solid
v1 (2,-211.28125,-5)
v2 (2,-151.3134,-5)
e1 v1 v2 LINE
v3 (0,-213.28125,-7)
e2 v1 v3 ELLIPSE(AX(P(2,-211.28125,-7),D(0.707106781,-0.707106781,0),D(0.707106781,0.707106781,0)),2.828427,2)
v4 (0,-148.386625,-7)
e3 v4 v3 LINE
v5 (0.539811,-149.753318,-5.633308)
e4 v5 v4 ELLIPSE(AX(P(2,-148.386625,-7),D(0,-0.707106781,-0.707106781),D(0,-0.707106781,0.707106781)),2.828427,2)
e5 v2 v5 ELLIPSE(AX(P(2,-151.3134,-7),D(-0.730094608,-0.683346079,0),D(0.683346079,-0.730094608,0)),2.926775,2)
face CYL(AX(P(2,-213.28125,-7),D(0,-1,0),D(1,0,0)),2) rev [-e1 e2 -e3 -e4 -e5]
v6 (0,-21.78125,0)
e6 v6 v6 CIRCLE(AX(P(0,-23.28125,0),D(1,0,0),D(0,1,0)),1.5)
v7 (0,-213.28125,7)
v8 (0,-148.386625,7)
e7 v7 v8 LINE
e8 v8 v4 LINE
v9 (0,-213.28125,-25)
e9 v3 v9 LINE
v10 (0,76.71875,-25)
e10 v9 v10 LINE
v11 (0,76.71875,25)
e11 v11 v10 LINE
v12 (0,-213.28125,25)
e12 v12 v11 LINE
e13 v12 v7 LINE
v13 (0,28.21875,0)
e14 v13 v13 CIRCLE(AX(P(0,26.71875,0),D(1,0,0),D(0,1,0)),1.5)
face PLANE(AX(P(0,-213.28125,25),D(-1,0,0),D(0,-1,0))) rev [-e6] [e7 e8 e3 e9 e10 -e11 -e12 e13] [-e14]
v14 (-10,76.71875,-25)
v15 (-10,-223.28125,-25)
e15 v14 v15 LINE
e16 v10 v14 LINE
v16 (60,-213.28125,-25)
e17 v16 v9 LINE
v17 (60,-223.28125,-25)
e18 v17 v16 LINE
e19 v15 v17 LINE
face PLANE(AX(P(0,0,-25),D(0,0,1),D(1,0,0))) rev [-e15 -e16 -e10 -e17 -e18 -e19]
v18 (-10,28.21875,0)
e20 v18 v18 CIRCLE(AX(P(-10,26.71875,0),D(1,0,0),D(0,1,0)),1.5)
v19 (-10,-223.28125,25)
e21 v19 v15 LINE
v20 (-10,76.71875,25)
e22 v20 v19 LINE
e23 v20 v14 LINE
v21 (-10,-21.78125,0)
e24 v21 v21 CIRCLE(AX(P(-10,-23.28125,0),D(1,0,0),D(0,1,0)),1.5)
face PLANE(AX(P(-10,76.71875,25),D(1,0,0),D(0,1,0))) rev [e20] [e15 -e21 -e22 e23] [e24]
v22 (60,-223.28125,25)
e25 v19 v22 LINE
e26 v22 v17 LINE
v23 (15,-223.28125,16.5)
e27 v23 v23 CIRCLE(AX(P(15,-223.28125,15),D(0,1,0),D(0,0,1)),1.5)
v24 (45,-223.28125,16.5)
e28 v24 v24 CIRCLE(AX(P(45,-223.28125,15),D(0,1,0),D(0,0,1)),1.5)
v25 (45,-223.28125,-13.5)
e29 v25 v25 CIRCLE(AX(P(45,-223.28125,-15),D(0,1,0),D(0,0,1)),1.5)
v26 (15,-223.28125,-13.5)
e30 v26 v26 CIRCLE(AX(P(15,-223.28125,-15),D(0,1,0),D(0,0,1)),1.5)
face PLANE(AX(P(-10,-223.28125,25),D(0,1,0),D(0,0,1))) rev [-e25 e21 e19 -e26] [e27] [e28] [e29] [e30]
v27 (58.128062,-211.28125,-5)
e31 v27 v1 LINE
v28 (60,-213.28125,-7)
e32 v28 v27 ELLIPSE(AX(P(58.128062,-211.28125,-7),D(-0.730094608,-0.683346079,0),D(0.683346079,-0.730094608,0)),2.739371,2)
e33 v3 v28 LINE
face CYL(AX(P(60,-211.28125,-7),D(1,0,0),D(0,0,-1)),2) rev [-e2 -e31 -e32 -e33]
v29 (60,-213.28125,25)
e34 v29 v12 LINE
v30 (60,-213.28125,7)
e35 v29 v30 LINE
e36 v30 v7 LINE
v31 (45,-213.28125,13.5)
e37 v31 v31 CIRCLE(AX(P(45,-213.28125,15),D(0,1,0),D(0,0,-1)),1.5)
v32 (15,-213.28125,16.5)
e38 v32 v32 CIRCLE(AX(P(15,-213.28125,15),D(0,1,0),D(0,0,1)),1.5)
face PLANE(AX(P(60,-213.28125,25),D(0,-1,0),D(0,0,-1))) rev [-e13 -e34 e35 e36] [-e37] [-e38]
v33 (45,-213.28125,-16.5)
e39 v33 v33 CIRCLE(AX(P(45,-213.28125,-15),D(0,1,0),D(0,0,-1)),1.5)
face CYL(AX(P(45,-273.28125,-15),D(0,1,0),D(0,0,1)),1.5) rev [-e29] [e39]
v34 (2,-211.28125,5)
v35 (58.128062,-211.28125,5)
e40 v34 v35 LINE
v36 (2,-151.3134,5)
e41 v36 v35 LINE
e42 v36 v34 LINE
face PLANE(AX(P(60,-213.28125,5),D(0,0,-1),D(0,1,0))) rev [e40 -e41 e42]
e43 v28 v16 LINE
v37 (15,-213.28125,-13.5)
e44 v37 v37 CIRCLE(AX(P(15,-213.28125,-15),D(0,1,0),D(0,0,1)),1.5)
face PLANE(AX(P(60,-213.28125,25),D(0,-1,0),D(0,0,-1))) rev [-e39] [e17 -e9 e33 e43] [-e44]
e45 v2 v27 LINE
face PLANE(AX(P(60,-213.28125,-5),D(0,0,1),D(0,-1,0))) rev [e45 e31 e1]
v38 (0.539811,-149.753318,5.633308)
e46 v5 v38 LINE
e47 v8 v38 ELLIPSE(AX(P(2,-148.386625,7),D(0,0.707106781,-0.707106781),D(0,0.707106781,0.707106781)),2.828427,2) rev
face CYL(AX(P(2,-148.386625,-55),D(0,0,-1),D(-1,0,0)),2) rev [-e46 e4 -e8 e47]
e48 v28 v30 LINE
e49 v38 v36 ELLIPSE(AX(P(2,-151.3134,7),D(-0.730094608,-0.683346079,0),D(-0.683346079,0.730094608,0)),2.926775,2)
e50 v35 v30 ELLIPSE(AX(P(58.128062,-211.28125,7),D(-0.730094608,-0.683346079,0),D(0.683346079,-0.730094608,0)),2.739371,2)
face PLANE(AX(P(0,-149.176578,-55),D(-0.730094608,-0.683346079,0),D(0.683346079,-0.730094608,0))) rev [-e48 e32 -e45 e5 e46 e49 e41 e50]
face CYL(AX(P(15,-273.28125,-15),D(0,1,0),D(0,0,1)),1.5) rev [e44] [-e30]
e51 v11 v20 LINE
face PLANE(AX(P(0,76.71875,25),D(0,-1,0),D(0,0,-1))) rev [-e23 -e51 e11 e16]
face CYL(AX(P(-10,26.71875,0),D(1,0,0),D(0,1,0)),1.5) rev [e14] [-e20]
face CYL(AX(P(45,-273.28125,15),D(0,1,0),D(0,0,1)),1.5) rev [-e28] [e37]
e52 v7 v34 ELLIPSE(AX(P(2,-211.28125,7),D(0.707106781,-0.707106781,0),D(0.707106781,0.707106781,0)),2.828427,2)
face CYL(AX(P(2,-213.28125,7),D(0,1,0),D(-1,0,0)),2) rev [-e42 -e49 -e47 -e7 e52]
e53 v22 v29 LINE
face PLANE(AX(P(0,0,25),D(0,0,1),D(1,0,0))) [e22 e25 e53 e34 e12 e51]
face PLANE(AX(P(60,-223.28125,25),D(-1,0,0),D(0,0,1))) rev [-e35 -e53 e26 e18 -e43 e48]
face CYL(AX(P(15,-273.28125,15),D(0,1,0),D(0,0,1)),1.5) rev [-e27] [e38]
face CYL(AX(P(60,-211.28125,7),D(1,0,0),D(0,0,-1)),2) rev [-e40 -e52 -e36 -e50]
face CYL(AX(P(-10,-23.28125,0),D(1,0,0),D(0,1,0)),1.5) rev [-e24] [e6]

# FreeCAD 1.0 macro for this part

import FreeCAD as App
import Part
import Sketcher


def edges_at(feature, points):
    """Names of the edges that pass closest to the given points."""
    edges = feature.Shape.Edges
    near = lambda p: min(range(len(edges)), key=lambda i: edges[i].distToShape(Part.Vertex(*p))[0])
    return sorted({f"Edge{near(p) + 1}" for p in points})

doc = App.newDocument("Part")
body = doc.addObject("PartDesign::Body", "Body")

# Sketch on XY plane
sketch1 = body.newObject("Sketcher::SketchObject", "Sketch")
sketch1.AttachmentSupport = (doc.getObject("XY_Plane"), [""])
sketch1.MapMode = "FlatFace"
sketch1.addGeometry(Part.LineSegment(App.Vector(0, 77, 0), App.Vector(-10, 77, 0)), False)
sketch1.addGeometry(Part.LineSegment(App.Vector(-10, 77, 0), App.Vector(-10, -223, 0)), False)
sketch1.addGeometry(Part.LineSegment(App.Vector(-10, -223, 0), App.Vector(60, -223, 0)), False)
sketch1.addGeometry(Part.LineSegment(App.Vector(60, -223, 0), App.Vector(60, -213, 0)), False)
sketch1.addGeometry(Part.LineSegment(App.Vector(60, -213, 0), App.Vector(0, -213, 0)), False)
sketch1.addGeometry(Part.LineSegment(App.Vector(0, -213, 0), App.Vector(0, 77, 0)), False)
sketch1.addConstraint(Sketcher.Constraint("Coincident", 0, 2, 1, 1))
sketch1.addConstraint(Sketcher.Constraint("Coincident", 1, 2, 2, 1))
sketch1.addConstraint(Sketcher.Constraint("Coincident", 2, 2, 3, 1))
sketch1.addConstraint(Sketcher.Constraint("Coincident", 3, 2, 4, 1))
sketch1.addConstraint(Sketcher.Constraint("Coincident", 4, 2, 5, 1))
sketch1.addConstraint(Sketcher.Constraint("Coincident", 5, 2, 0, 1))
sketch1.addConstraint(Sketcher.Constraint("Horizontal", 0))
sketch1.addConstraint(Sketcher.Constraint("Vertical", 1))
sketch1.addConstraint(Sketcher.Constraint("Horizontal", 2))
sketch1.addConstraint(Sketcher.Constraint("Vertical", 3))
sketch1.addConstraint(Sketcher.Constraint("Horizontal", 4))
sketch1.addConstraint(Sketcher.Constraint("Vertical", 5))
sketch1.addConstraint(Sketcher.Constraint("PointOnObject", 4, 2, -2))
sketch1.addConstraint(Sketcher.Constraint("Equal", 0, 3))
sketch1.addConstraint(Sketcher.Constraint("DistanceX", 0, 2, 0, 1, 10.0))
sketch1.addConstraint(Sketcher.Constraint("DistanceX", 2, 1, 2, 2, 70.0))
sketch1.addConstraint(Sketcher.Constraint("DistanceY", 1, 2, 1, 1, 300.0))
sketch1.addConstraint(Sketcher.Constraint("DistanceY", -1, 1, 0, 2, 76.71875))
pad1 = body.newObject("PartDesign::Pad", "Pad")
pad1.Profile = sketch1
pad1.Length = 50
pad1.Midplane = True

# Sketch on YZ plane
sketch2 = body.newObject("Sketcher::SketchObject", "Sketch001")
sketch2.AttachmentSupport = (doc.getObject("YZ_Plane"), [""])
sketch2.MapMode = "FlatFace"
sketch2.addGeometry(Part.LineSegment(App.Vector(-149, 5, 0), App.Vector(-213, 5, 0)), False)
sketch2.addGeometry(Part.LineSegment(App.Vector(-213, 5, 0), App.Vector(-213, -5, 0)), False)
sketch2.addGeometry(Part.LineSegment(App.Vector(-213, -5, 0), App.Vector(-149, -5, 0)), False)
sketch2.addGeometry(Part.LineSegment(App.Vector(-149, -5, 0), App.Vector(-149, 5, 0)), False)
sketch2.addConstraint(Sketcher.Constraint("Coincident", 0, 2, 1, 1))
sketch2.addConstraint(Sketcher.Constraint("Coincident", 1, 2, 2, 1))
sketch2.addConstraint(Sketcher.Constraint("Coincident", 2, 2, 3, 1))
sketch2.addConstraint(Sketcher.Constraint("Coincident", 3, 2, 0, 1))
sketch2.addConstraint(Sketcher.Constraint("Horizontal", 0))
sketch2.addConstraint(Sketcher.Constraint("Vertical", 1))
sketch2.addConstraint(Sketcher.Constraint("Horizontal", 2))
sketch2.addConstraint(Sketcher.Constraint("Vertical", 3))
sketch2.addConstraint(Sketcher.Constraint("DistanceY", 1, 2, 1, 1, 10.0))
sketch2.addConstraint(Sketcher.Constraint("DistanceY", -1, 1, 0, 2, 5.0))
sketch2.addConstraint(Sketcher.Constraint("DistanceX", 0, 2, 0, 1, 64.104672))
sketch2.addConstraint(Sketcher.Constraint("DistanceX", 0, 2, -1, 1, 213.28125))
pad2 = body.newObject("PartDesign::Pad", "Pad001")
pad2.Profile = sketch2
pad2.Length = 60

# Sketch on XY plane
sketch3 = body.newObject("Sketcher::SketchObject", "Sketch002")
sketch3.AttachmentSupport = (doc.getObject("XY_Plane"), [""])
sketch3.MapMode = "FlatFace"
sketch3.AttachmentOffset = App.Placement(App.Vector(0, 0, 5), App.Rotation())
sketch3.addGeometry(Part.LineSegment(App.Vector(0, -149, 0), App.Vector(60, -213, 0)), False)
sketch3.addGeometry(Part.LineSegment(App.Vector(60, -213, 0), App.Vector(60, -149, 0)), False)
sketch3.addGeometry(Part.LineSegment(App.Vector(60, -149, 0), App.Vector(0, -149, 0)), False)
sketch3.addConstraint(Sketcher.Constraint("Coincident", 0, 2, 1, 1))
sketch3.addConstraint(Sketcher.Constraint("Coincident", 1, 2, 2, 1))
sketch3.addConstraint(Sketcher.Constraint("Coincident", 2, 2, 0, 1))
sketch3.addConstraint(Sketcher.Constraint("Vertical", 1))
sketch3.addConstraint(Sketcher.Constraint("Horizontal", 2))
sketch3.addConstraint(Sketcher.Constraint("PointOnObject", 2, 2, -2))
sketch3.addConstraint(Sketcher.Constraint("DistanceX", 2, 2, 2, 1, 60.0))
sketch3.addConstraint(Sketcher.Constraint("Distance", 0, 87.80324))
sketch3.addConstraint(Sketcher.Constraint("DistanceY", 0, 2, -1, 1, 213.28125))
pocket1 = body.newObject("PartDesign::Pocket", "Pocket")
pocket1.Profile = sketch3
pocket1.Length = 60

# Sketch on XZ plane
sketch4 = body.newObject("Sketcher::SketchObject", "Sketch003")
sketch4.AttachmentSupport = (doc.getObject("XZ_Plane"), [""])
sketch4.MapMode = "FlatFace"
sketch4.AttachmentOffset = App.Placement(App.Vector(0, 0, 213.28125), App.Rotation())
sketch4.addGeometry(Part.Circle(App.Vector(15, -15, 0), App.Vector(0, 0, 1), 1.5), False)
sketch4.addGeometry(Part.Circle(App.Vector(15, 15, 0), App.Vector(0, 0, 1), 1.5), False)
sketch4.addGeometry(Part.Circle(App.Vector(45, 15, 0), App.Vector(0, 0, 1), 1.5), False)
sketch4.addGeometry(Part.Circle(App.Vector(45, -15, 0), App.Vector(0, 0, 1), 1.5), False)
sketch4.addConstraint(Sketcher.Constraint("Equal", 0, 1))
sketch4.addConstraint(Sketcher.Constraint("Equal", 1, 2))
sketch4.addConstraint(Sketcher.Constraint("Equal", 2, 3))
sketch4.addConstraint(Sketcher.Constraint("Symmetric", 0, 3, 1, 3, -1))
sketch4.addConstraint(Sketcher.Constraint("Symmetric", 2, 3, 3, 3, -1))
sketch4.addConstraint(Sketcher.Constraint("Horizontal", 1, 3, 2, 3))
sketch4.addConstraint(Sketcher.Constraint("Diameter", 0, 3.0))
sketch4.addConstraint(Sketcher.Constraint("DistanceX", -1, 1, 0, 3, 15.0))
sketch4.addConstraint(Sketcher.Constraint("DistanceY", 0, 3, -1, 1, 15.0))
sketch4.addConstraint(Sketcher.Constraint("DistanceX", -1, 1, 2, 3, 45.0))
pocket2 = body.newObject("PartDesign::Pocket", "Pocket001")
pocket2.Profile = sketch4
pocket2.Length = 60
pocket2.Reversed = True
doc.recompute()

fillet = body.newObject("PartDesign::Fillet", "Fillet")
fillet.Base = (pocket2, edges_at(pocket2, [
    (0, -181.229, 5),
    (30, -213.281, 5),
    (0, -181.229, -5),
    (30, -213.281, -5),
    (0, -149.177, 0),
]))
fillet.Radius = 2

# Sketch on YZ plane
sketch5 = body.newObject("Sketcher::SketchObject", "Sketch004")
sketch5.AttachmentSupport = (doc.getObject("YZ_Plane"), [""])
sketch5.MapMode = "FlatFace"
sketch5.addGeometry(Part.Circle(App.Vector(26.7, 0, 0), App.Vector(0, 0, 1), 1.5), False)
sketch5.addGeometry(Part.Circle(App.Vector(-23.3, 0, 0), App.Vector(0, 0, 1), 1.5), False)
sketch5.addConstraint(Sketcher.Constraint("Equal", 0, 1))
sketch5.addConstraint(Sketcher.Constraint("PointOnObject", 0, 3, -1))
sketch5.addConstraint(Sketcher.Constraint("PointOnObject", 1, 3, -1))
sketch5.addConstraint(Sketcher.Constraint("Diameter", 0, 3.0))
sketch5.addConstraint(Sketcher.Constraint("DistanceX", 1, 3, 0, 3, 50.0))
sketch5.addConstraint(Sketcher.Constraint("DistanceX", -1, 1, 0, 3, 26.71875))
pocket3 = body.newObject("PartDesign::Pocket", "Pocket002")
pocket3.Profile = sketch5
pocket3.Length = 10

doc.recompute()
